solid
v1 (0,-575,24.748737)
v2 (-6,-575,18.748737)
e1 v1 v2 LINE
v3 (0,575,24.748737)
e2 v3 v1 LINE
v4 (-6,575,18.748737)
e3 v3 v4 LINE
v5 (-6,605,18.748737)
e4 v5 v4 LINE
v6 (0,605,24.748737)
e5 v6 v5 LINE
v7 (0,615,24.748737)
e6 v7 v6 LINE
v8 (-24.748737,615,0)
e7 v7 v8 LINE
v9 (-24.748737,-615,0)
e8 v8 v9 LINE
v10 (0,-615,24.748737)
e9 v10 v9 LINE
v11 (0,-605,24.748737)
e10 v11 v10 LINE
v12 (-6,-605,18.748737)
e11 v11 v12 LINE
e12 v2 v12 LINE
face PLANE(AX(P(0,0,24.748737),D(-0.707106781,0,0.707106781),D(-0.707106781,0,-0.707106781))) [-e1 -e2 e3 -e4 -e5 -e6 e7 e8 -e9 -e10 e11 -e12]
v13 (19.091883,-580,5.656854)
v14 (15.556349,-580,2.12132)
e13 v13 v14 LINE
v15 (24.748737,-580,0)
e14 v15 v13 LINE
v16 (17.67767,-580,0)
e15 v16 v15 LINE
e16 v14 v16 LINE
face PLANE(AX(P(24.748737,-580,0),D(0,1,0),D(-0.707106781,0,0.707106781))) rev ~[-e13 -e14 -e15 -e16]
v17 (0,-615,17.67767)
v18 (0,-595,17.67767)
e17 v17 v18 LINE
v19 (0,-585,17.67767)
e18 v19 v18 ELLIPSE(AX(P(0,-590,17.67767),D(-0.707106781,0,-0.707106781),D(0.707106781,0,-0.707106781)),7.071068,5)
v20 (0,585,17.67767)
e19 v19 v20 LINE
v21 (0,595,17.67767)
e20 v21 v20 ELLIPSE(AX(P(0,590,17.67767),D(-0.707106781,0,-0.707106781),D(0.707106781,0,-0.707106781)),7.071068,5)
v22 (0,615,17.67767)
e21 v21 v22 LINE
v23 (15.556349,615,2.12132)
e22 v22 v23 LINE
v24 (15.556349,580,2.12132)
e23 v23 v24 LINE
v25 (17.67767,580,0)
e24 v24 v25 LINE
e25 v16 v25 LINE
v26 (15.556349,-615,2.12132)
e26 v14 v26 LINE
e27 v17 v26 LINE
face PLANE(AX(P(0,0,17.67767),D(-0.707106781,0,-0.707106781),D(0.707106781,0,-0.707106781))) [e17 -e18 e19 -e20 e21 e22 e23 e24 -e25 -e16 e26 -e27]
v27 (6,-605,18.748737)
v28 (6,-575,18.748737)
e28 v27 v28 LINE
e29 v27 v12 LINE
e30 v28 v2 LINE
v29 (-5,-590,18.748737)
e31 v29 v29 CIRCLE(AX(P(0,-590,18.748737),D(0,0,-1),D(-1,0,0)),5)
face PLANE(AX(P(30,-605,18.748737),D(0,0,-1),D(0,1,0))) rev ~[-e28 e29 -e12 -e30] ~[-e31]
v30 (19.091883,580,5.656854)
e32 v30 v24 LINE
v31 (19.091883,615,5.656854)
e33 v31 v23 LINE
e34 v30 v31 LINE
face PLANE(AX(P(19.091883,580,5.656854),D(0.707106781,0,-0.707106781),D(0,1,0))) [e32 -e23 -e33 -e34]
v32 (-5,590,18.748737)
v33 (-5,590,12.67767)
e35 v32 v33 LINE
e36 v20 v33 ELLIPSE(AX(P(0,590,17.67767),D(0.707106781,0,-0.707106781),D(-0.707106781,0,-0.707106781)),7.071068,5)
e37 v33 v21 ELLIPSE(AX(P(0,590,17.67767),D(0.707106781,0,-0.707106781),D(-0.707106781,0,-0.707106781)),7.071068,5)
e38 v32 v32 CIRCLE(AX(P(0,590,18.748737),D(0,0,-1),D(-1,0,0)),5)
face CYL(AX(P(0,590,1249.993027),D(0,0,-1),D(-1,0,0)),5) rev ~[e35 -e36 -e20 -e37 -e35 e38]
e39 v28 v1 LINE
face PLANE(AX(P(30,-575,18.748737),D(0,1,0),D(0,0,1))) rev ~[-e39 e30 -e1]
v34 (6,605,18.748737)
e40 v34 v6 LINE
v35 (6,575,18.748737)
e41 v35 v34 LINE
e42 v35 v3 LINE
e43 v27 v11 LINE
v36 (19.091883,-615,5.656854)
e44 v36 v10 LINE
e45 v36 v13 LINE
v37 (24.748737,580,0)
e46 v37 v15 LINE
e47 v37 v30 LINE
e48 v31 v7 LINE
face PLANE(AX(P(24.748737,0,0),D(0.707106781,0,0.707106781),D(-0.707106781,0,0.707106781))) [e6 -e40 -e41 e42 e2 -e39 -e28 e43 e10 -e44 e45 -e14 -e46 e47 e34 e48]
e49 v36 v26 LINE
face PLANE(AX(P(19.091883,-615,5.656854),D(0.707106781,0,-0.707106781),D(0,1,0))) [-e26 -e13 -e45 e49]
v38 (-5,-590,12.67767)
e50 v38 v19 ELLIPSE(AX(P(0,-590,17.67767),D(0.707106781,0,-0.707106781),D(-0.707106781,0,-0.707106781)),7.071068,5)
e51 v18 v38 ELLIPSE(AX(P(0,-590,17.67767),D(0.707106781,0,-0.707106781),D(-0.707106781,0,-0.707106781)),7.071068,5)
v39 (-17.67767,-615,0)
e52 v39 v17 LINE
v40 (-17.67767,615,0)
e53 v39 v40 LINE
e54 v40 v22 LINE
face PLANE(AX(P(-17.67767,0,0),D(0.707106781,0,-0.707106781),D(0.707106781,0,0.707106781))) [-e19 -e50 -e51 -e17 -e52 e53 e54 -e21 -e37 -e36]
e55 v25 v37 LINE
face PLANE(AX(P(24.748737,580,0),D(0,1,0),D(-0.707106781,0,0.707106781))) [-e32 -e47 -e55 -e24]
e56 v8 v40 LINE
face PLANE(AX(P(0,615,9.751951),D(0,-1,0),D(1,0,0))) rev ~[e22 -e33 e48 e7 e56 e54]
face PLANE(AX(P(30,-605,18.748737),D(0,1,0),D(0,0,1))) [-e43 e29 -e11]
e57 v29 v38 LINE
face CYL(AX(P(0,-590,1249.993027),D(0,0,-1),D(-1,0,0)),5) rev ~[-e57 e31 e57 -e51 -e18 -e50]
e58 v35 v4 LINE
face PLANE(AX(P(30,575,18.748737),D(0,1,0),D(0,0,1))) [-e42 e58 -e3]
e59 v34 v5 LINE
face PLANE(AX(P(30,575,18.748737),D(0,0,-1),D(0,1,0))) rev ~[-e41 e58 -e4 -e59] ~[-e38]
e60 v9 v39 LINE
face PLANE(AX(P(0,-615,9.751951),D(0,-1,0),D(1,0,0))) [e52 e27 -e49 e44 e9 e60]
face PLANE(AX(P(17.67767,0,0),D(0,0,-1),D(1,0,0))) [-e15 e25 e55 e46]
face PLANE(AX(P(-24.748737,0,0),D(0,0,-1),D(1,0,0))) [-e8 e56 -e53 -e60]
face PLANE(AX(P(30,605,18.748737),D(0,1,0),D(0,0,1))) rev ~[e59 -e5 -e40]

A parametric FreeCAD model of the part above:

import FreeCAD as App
import Part
import Sketcher
from FreeCAD import Vector

doc = App.newDocument("Part")
body = doc.addObject("PartDesign::Body", "Body")

# Sketch on XZ plane
sketch1 = doc.addObject("Sketcher::SketchObject", "Sketch")
body.addObject(sketch1)
sketch1.AttachmentSupport = (doc.XZ_Plane, [""])
sketch1.MapMode = "FlatFace"
sketch1.addGeometry([
    Part.LineSegment(Vector(18, 0, 0), Vector(25, 0, 0)),  # 0
    Part.LineSegment(Vector(25, 0, 0), Vector(0, 25, 0)),  # 1
    Part.LineSegment(Vector(0, 25, 0), Vector(-25, 0, 0)),  # 2
    Part.LineSegment(Vector(-25, 0, 0), Vector(-18, 0, 0)),  # 3
    Part.LineSegment(Vector(-18, 0, 0), Vector(0, 18, 0)),  # 4
    Part.LineSegment(Vector(0, 18, 0), Vector(18, 0, 0)),  # 5
], False)
sketch1.addConstraint([
    Sketcher.Constraint("Coincident", 0, 2, 1, 1),
    Sketcher.Constraint("Coincident", 1, 2, 2, 1),
    Sketcher.Constraint("Coincident", 2, 2, 3, 1),
    Sketcher.Constraint("Coincident", 3, 2, 4, 1),
    Sketcher.Constraint("Coincident", 4, 2, 5, 1),
    Sketcher.Constraint("Coincident", 5, 2, 0, 1),
    Sketcher.Constraint("Horizontal", 0),
    Sketcher.Constraint("Horizontal", 3),
    Sketcher.Constraint("Symmetric", 0, 2, 2, 2, -1, 1),
    Sketcher.Constraint("Symmetric", 3, 2, 5, 2, -2),
    Sketcher.Constraint("PointOnObject", 1, 2, -2),
    Sketcher.Constraint("PointOnObject", 4, 2, -2),
    Sketcher.Constraint("Perpendicular", 1, 2),
    Sketcher.Constraint("Parallel", 2, 4),
    Sketcher.Constraint("Distance", 1, 35.0),
    Sketcher.Constraint("Distance", 4, 25.0),
])
pad1 = doc.addObject("PartDesign::Pad", "Pad")
body.addObject(pad1)
pad1.Profile = sketch1
pad1.Length = 1230
pad1.Midplane = True

# Sketch on YZ plane
sketch2 = doc.addObject("Sketcher::SketchObject", "Sketch001")
body.addObject(sketch2)
sketch2.AttachmentSupport = (doc.YZ_Plane, [""])
sketch2.MapMode = "FlatFace"
sketch2.AttachmentOffset = App.Placement(Vector(0, 0, 30), App.Rotation())
sketch2.addGeometry([
    Part.LineSegment(Vector(575, 25, 0), Vector(575, 19, 0)),  # 0
    Part.LineSegment(Vector(575, 19, 0), Vector(605, 19, 0)),  # 1
    Part.LineSegment(Vector(605, 19, 0), Vector(605, 25, 0)),  # 2
    Part.LineSegment(Vector(605, 25, 0), Vector(575, 25, 0)),  # 3
    Part.LineSegment(Vector(-605, 25, 0), Vector(-605, 19, 0)),  # 4
    Part.LineSegment(Vector(-605, 19, 0), Vector(-575, 19, 0)),  # 5
    Part.LineSegment(Vector(-575, 19, 0), Vector(-575, 25, 0)),  # 6
    Part.LineSegment(Vector(-575, 25, 0), Vector(-605, 25, 0)),  # 7
], False)
sketch2.addConstraint([
    Sketcher.Constraint("Coincident", 0, 2, 1, 1),
    Sketcher.Constraint("Coincident", 1, 2, 2, 1),
    Sketcher.Constraint("Coincident", 2, 2, 3, 1),
    Sketcher.Constraint("Coincident", 3, 2, 0, 1),
    Sketcher.Constraint("Coincident", 4, 2, 5, 1),
    Sketcher.Constraint("Coincident", 5, 2, 6, 1),
    Sketcher.Constraint("Coincident", 6, 2, 7, 1),
    Sketcher.Constraint("Coincident", 7, 2, 4, 1),
    Sketcher.Constraint("Vertical", 0),
    Sketcher.Constraint("Horizontal", 1),
    Sketcher.Constraint("Vertical", 2),
    Sketcher.Constraint("Horizontal", 3),
    Sketcher.Constraint("Vertical", 4),
    Sketcher.Constraint("Horizontal", 5),
    Sketcher.Constraint("Vertical", 6),
    Sketcher.Constraint("Horizontal", 7),
    Sketcher.Constraint("Symmetric", 1, 2, 4, 2, -2),
    Sketcher.Constraint("Symmetric", 3, 2, 6, 2, -2),
    Sketcher.Constraint("DistanceX", 1, 1, 1, 2, 30.0),
    Sketcher.Constraint("DistanceY", 0, 2, 0, 1, 6.0),
    Sketcher.Constraint("DistanceX", -1, 1, 0, 2, 575.0),
    Sketcher.Constraint("DistanceY", -1, 1, 0, 2, 18.748737),
])
pocket1 = doc.addObject("PartDesign::Pocket", "Pocket")
body.addObject(pocket1)
pocket1.Profile = sketch2
pocket1.Type = "ThroughAll"

# Sketch on XY plane
sketch3 = doc.addObject("Sketcher::SketchObject", "Sketch002")
body.addObject(sketch3)
sketch3.AttachmentSupport = (doc.XY_Plane, [""])
sketch3.MapMode = "FlatFace"
sketch3.AttachmentOffset = App.Placement(Vector(0, 0, 18.748737), App.Rotation())
sketch3.addGeometry([
    Part.Circle(Vector(0, -590, 0), Vector(0, 0, 1), 5),
    Part.Circle(Vector(0, 590, 0), Vector(0, 0, 1), 5),
], False)
sketch3.addConstraint([
    Sketcher.Constraint("Equal", 0, 1),
    Sketcher.Constraint("Symmetric", 0, 3, 1, 3, -1, 1),
    Sketcher.Constraint("PointOnObject", 0, 3, -2),
    Sketcher.Constraint("Diameter", 0, 10.0),
    Sketcher.Constraint("DistanceY", 0, 3, -1, 1, 590.0),
])
doc.recompute()
hole = doc.addObject("PartDesign::Hole", "Hole")
body.addObject(hole)
hole.Profile = sketch3
hole.ThreadType = "None"
hole.Diameter = 10
hole.DepthType = "ThroughAll"

# Sketch on an angled plane
sketch4 = doc.addObject("Sketcher::SketchObject", "Sketch003")
body.addObject(sketch4)
sketch4.Placement = App.Placement(Vector(12.374369, 0, 12.374369), App.Rotation(Vector(0, 1, 0), Vector(-0.707106781, 0, 0.707106781), Vector(0.707106781, 0, 0.707106781), "ZXY"))
sketch4.addGeometry([
    Part.LineSegment(Vector(-615, -9, 0), Vector(-615, -17, 0)),  # 0
    Part.LineSegment(Vector(-615, -17, 0), Vector(-580, -17, 0)),  # 1
    Part.LineSegment(Vector(-580, -17, 0), Vector(-580, -9, 0)),  # 2
    Part.LineSegment(Vector(-580, -9, 0), Vector(-615, -9, 0)),  # 3
    Part.LineSegment(Vector(580, -9, 0), Vector(580, -17, 0)),  # 4
    Part.LineSegment(Vector(580, -17, 0), Vector(615, -17, 0)),  # 5
    Part.LineSegment(Vector(615, -17, 0), Vector(615, -9, 0)),  # 6
    Part.LineSegment(Vector(615, -9, 0), Vector(580, -9, 0)),  # 7
], False)
sketch4.addConstraint([
    Sketcher.Constraint("Coincident", 0, 2, 1, 1),
    Sketcher.Constraint("Coincident", 1, 2, 2, 1),
    Sketcher.Constraint("Coincident", 2, 2, 3, 1),
    Sketcher.Constraint("Coincident", 3, 2, 0, 1),
    Sketcher.Constraint("Coincident", 4, 2, 5, 1),
    Sketcher.Constraint("Coincident", 5, 2, 6, 1),
    Sketcher.Constraint("Coincident", 6, 2, 7, 1),
    Sketcher.Constraint("Coincident", 7, 2, 4, 1),
    Sketcher.Constraint("Vertical", 0),
    Sketcher.Constraint("Horizontal", 1),
    Sketcher.Constraint("Vertical", 2),
    Sketcher.Constraint("Horizontal", 3),
    Sketcher.Constraint("Vertical", 4),
    Sketcher.Constraint("Horizontal", 5),
    Sketcher.Constraint("Vertical", 6),
    Sketcher.Constraint("Horizontal", 7),
    Sketcher.Constraint("Symmetric", 1, 2, 4, 2, -2),
    Sketcher.Constraint("Symmetric", 3, 2, 6, 2, -2),
    Sketcher.Constraint("DistanceX", 1, 1, 1, 2, 35.0),
    Sketcher.Constraint("DistanceY", 0, 2, 0, 1, 8.0),
    Sketcher.Constraint("DistanceX", 0, 2, -1, 1, 615.0),
    Sketcher.Constraint("DistanceY", 0, 2, -1, 1, 17.5),
])
pocket2 = doc.addObject("PartDesign::Pocket", "Pocket001")
body.addObject(pocket2)
pocket2.Profile = sketch4
pocket2.Length = 25

doc.recompute()
